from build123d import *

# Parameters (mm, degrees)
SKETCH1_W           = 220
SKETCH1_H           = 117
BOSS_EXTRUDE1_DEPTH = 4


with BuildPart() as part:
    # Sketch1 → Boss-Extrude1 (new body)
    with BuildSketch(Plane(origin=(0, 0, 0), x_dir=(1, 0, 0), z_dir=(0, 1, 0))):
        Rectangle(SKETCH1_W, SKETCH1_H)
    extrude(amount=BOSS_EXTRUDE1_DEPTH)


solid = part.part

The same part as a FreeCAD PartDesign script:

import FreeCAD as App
import Part
import Sketcher

doc = App.newDocument("Part")
body = doc.addObject("PartDesign::Body", "Body")

# Sketch on XZ plane
sketch1 = body.newObject("Sketcher::SketchObject", "Sketch")
sketch1.AttachmentSupport = (doc.getObject("XZ_Plane"), [""])
sketch1.MapMode = "FlatFace"
sketch1.addGeometry(Part.LineSegment(App.Vector(-110, -58, 0), App.Vector(-110, 58, 0)), False)
sketch1.addGeometry(Part.LineSegment(App.Vector(-110, 58, 0), App.Vector(110, 58, 0)), False)
sketch1.addGeometry(Part.LineSegment(App.Vector(110, 58, 0), App.Vector(110, -58, 0)), False)
sketch1.addGeometry(Part.LineSegment(App.Vector(110, -58, 0), App.Vector(-110, -58, 0)), False)
sketch1.addConstraint(Sketcher.Constraint("Coincident", 0, 2, 1, 1))
sketch1.addConstraint(Sketcher.Constraint("Coincident", 1, 2, 2, 1))
sketch1.addConstraint(Sketcher.Constraint("Coincident", 2, 2, 3, 1))
sketch1.addConstraint(Sketcher.Constraint("Coincident", 3, 2, 0, 1))
sketch1.addConstraint(Sketcher.Constraint("Vertical", 0))
sketch1.addConstraint(Sketcher.Constraint("Horizontal", 1))
sketch1.addConstraint(Sketcher.Constraint("Vertical", 2))
sketch1.addConstraint(Sketcher.Constraint("Horizontal", 3))
sketch1.addConstraint(Sketcher.Constraint("Symmetric", 0, 2, 2, 2, -1, 1))
sketch1.addConstraint(Sketcher.Constraint("DistanceX", 1, 1, 1, 2, 220.0))
sketch1.addConstraint(Sketcher.Constraint("DistanceY", 0, 1, 0, 2, 117.0))
pad1 = body.newObject("PartDesign::Pad", "Pad")
pad1.Profile = sketch1
pad1.Length = 4
pad1.Reversed = True

doc.recompute()
